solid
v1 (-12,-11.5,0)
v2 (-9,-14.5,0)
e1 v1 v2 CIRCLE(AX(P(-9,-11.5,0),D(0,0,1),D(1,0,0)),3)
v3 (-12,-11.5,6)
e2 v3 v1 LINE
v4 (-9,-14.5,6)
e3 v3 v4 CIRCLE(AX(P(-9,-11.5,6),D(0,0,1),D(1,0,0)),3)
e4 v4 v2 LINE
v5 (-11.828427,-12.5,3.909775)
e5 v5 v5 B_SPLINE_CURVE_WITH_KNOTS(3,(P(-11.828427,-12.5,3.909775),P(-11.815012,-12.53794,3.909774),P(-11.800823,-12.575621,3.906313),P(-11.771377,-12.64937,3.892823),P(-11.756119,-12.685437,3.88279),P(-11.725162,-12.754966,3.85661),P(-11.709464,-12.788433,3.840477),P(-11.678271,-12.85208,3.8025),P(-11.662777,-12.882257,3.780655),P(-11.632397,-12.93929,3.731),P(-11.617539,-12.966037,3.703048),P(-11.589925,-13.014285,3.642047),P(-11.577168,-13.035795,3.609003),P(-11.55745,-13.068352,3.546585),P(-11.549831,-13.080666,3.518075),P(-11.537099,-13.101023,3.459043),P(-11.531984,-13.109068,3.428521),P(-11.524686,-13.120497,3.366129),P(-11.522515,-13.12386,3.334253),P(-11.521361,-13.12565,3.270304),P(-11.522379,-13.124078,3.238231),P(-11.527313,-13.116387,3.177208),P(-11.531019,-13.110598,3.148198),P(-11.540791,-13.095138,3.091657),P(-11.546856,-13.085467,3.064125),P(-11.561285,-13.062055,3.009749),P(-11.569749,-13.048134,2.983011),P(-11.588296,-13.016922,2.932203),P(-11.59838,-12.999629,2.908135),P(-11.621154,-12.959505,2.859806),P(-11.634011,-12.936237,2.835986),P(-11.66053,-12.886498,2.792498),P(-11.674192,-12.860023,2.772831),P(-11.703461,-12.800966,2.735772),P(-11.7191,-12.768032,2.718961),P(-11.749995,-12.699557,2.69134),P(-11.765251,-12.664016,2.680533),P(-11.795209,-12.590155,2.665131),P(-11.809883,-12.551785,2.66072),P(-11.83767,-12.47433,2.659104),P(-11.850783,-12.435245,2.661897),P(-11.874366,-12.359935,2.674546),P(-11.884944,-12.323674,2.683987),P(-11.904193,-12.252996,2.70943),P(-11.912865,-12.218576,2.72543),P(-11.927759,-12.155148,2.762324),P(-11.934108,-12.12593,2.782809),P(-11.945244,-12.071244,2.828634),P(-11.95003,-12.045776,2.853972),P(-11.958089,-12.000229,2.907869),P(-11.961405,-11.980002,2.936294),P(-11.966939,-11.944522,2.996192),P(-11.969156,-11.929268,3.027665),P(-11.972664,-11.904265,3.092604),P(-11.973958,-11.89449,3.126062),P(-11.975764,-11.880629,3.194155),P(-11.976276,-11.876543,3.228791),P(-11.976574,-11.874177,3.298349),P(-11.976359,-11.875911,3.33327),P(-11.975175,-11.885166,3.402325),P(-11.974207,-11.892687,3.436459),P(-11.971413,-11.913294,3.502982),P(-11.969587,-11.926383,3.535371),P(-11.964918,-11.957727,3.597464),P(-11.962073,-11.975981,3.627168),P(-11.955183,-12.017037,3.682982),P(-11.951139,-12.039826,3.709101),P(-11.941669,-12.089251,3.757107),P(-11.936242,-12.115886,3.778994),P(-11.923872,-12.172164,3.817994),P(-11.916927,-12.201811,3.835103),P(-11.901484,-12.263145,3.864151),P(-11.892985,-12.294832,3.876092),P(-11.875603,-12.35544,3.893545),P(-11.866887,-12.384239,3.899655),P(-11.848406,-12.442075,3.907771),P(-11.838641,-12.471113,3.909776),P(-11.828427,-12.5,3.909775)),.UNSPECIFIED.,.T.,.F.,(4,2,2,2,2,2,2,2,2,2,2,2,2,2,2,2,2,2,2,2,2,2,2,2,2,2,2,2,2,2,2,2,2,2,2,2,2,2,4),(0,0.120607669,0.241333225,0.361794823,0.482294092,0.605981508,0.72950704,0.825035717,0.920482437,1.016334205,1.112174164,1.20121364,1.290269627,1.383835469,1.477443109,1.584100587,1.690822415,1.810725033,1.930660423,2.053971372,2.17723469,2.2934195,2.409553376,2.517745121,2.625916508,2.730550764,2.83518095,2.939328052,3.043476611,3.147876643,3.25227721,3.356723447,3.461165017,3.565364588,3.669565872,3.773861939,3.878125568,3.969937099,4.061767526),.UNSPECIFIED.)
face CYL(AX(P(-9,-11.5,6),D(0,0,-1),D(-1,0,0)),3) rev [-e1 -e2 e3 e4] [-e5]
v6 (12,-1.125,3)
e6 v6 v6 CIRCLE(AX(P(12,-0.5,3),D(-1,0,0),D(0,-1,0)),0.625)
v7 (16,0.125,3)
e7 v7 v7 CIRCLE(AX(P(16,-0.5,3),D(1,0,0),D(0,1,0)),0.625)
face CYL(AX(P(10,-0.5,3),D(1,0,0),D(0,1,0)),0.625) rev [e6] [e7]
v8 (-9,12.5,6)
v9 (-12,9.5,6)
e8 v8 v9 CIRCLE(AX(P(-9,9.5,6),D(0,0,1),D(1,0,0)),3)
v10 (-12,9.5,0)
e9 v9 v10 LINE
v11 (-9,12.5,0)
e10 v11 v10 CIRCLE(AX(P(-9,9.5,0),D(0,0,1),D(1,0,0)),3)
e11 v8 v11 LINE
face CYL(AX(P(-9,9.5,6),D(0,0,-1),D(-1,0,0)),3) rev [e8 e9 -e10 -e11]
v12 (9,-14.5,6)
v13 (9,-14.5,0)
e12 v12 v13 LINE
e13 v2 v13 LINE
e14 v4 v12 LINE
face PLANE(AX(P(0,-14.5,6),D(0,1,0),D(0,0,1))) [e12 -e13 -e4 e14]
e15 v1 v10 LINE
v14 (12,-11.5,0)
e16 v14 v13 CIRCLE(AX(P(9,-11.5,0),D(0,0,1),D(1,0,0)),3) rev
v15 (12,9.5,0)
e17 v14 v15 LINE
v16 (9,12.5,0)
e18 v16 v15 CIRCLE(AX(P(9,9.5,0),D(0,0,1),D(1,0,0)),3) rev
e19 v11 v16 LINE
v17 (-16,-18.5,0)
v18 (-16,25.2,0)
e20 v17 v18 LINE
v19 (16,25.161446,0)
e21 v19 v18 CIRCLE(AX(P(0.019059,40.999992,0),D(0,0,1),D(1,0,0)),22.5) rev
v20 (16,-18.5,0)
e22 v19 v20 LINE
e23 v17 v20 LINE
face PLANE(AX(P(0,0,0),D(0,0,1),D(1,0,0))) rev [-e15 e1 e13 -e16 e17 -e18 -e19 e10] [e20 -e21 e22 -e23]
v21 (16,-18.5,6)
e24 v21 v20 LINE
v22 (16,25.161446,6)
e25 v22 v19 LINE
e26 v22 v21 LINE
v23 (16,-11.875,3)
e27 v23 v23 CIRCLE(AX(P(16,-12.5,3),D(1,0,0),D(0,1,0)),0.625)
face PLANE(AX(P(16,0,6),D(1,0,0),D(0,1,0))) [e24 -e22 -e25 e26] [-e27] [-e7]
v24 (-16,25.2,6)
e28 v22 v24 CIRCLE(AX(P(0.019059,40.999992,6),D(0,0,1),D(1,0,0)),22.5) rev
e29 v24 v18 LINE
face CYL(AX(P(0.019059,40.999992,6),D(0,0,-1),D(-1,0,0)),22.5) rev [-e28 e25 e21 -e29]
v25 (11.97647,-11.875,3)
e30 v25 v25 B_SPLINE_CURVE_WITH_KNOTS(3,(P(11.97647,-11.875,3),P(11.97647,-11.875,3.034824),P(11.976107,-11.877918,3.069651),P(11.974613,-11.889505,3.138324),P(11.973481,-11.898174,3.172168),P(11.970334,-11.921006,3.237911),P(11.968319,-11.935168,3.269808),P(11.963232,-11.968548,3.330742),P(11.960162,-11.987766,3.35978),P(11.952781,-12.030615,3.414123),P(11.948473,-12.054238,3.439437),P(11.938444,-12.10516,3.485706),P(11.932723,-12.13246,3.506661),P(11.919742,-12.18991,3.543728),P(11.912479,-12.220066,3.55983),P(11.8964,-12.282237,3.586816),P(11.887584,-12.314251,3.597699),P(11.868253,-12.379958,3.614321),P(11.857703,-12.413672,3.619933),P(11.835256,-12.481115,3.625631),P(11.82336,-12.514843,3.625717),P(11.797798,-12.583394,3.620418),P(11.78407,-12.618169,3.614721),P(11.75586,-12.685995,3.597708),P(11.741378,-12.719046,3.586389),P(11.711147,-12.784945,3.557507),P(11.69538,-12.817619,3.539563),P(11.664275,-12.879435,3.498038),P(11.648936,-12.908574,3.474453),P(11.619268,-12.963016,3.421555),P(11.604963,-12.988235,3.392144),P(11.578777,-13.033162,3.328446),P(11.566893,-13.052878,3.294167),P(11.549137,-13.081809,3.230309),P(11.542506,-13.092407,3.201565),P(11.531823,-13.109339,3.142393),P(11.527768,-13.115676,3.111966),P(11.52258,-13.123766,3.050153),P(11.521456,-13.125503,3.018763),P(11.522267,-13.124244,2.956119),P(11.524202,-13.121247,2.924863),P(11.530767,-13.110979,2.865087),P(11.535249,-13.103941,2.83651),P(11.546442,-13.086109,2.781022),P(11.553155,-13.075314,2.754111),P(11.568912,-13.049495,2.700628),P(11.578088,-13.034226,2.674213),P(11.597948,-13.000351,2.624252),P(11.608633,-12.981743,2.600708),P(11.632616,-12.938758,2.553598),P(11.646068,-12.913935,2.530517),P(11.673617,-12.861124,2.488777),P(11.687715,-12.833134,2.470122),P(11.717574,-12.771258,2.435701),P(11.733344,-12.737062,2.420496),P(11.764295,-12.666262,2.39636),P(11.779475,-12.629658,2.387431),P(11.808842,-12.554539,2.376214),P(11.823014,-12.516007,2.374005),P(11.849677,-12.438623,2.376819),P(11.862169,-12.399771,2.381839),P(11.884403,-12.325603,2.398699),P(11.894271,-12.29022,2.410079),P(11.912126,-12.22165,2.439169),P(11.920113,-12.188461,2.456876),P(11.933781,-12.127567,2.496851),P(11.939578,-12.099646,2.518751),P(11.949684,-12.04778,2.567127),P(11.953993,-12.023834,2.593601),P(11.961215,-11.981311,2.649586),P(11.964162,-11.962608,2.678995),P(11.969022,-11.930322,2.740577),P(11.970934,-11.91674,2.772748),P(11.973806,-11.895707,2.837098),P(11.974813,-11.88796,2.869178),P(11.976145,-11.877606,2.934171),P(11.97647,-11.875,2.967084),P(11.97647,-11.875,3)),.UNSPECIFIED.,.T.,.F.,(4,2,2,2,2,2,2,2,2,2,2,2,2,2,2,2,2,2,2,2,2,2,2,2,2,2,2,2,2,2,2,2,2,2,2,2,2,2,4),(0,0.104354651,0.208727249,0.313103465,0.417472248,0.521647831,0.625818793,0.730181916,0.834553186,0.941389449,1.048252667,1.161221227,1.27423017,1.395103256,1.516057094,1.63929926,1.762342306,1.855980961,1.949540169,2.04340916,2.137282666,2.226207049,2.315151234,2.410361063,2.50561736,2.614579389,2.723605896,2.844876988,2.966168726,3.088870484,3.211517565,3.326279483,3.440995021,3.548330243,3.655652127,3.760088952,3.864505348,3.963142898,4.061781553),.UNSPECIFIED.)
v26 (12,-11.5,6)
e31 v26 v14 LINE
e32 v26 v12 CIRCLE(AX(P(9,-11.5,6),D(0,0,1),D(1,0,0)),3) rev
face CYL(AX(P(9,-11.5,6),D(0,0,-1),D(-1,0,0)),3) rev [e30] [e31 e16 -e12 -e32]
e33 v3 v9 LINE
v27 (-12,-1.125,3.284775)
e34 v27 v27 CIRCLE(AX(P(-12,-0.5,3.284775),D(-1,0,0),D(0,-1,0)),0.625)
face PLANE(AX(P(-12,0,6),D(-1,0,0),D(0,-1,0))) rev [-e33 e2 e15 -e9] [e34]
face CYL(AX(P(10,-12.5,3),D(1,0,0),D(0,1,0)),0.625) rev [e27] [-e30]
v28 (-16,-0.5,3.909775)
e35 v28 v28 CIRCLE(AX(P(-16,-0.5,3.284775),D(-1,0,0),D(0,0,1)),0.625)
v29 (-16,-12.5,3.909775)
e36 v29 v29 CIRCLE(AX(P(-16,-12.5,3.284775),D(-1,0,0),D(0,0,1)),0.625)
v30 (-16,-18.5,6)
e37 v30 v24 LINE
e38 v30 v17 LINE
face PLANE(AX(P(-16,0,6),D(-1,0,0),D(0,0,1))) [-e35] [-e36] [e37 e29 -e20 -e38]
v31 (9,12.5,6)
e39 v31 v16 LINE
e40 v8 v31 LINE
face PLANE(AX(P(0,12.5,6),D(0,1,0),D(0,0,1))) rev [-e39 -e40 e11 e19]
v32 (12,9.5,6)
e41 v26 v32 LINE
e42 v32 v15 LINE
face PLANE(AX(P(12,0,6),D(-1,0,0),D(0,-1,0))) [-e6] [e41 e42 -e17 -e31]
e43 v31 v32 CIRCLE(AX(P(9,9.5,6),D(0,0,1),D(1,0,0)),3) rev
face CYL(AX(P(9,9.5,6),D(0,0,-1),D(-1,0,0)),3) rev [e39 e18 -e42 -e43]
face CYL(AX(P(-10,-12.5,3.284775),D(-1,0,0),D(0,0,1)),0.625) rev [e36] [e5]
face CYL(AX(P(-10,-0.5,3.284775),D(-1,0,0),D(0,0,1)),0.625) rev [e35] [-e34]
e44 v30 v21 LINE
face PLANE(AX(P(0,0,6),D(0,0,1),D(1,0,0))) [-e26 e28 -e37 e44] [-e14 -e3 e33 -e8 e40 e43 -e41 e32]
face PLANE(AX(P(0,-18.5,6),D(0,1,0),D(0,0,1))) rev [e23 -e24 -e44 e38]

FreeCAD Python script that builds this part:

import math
import FreeCAD as App
import Part
import Sketcher
from FreeCAD import Vector

doc = App.newDocument("Part")
params = doc.addObject("Spreadsheet::Sheet", "Params")
for row, (alias, value) in enumerate([
    ("sketch1_radius", "3 mm"),
    ("sketch1_radius2", "22.5 mm"),
    ("sketch1_width", "32 mm"),
    ("sketch1_width2", "18 mm"),
    ("sketch1_height", "21 mm"),
    ("pad1_length", "6 mm"),
    ("sketch2_diameter", "1.25 mm"),
    ("pocket1_length", "6 mm"),
    ("sketch3_diameter", "1.25 mm"),
    ("pocket2_length", "6 mm"),
], start=1):
    params.set(f"A{row}", alias)
    params.set(f"B{row}", "=" + value)
    params.setAlias(f"B{row}", alias)

body = doc.addObject("PartDesign::Body", "Body")

sketch1 = body.newObject("Sketcher::SketchObject", "Sketch")
sketch1.AttachmentSupport = (doc.getObject("XY_Plane"), [""])
sketch1.MapMode = "FlatFace"
sketch1.addGeometry([
    Part.LineSegment(Vector(-16, 25.2, 0), Vector(-16, -18.5, 0)),
    Part.LineSegment(Vector(-16, -18.5, 0), Vector(16, -18.5, 0)),
    Part.LineSegment(Vector(16, -18.5, 0), Vector(16, 25.161446, 0)),
    Part.ArcOfCircle(Part.Circle(Vector(0.019059, 40.999992, 0), Vector(0, 0, 1), 22.5), math.radians(-135.394463), math.radians(-44.743598)),
    Part.LineSegment(Vector(9, -14.5, 0), Vector(-9, -14.5, 0)),
    Part.ArcOfCircle(Part.Circle(Vector(-9, -11.5, 0), Vector(0, 0, 1), 3), math.radians(180), math.radians(270)),
    Part.LineSegment(Vector(-12, -11.5, 0), Vector(-12, 9.5, 0)),
    Part.ArcOfCircle(Part.Circle(Vector(-9, 9.5, 0), Vector(0, 0, 1), 3), math.radians(90), math.radians(180)),
    Part.LineSegment(Vector(-9, 12.5, 0), Vector(9, 12.5, 0)),
    Part.ArcOfCircle(Part.Circle(Vector(9, 9.5, 0), Vector(0, 0, 1), 3), math.radians(0), math.radians(90)),
    Part.LineSegment(Vector(12, 9.5, 0), Vector(12, -11.5, 0)),
    Part.ArcOfCircle(Part.Circle(Vector(9, -11.5, 0), Vector(0, 0, 1), 3), math.radians(-90), math.radians(0)),
], False)
sketch1.addConstraint([
    Sketcher.Constraint("Coincident", 0, 2, 1, 1),
    Sketcher.Constraint("Coincident", 1, 2, 2, 1),
    Sketcher.Constraint("Coincident", 2, 2, 3, 2),
    Sketcher.Constraint("Coincident", 3, 1, 0, 1),
    Sketcher.Constraint("Tangent", 4, 2, 5, 2),
    Sketcher.Constraint("Tangent", 5, 1, 6, 1),
    Sketcher.Constraint("Tangent", 6, 2, 7, 2),
    Sketcher.Constraint("Tangent", 7, 1, 8, 1),
    Sketcher.Constraint("Tangent", 8, 2, 9, 2),
    Sketcher.Constraint("Tangent", 9, 1, 10, 1),
    Sketcher.Constraint("Tangent", 10, 2, 11, 2),
    Sketcher.Constraint("Tangent", 11, 1, 4, 1),
    Sketcher.Constraint("Vertical", 0),
    Sketcher.Constraint("Horizontal", 1),
    Sketcher.Constraint("Vertical", 2),
    Sketcher.Constraint("Horizontal", 4),
    Sketcher.Constraint("Vertical", 6),
    Sketcher.Constraint("Horizontal", 8),
    Sketcher.Constraint("Vertical", 10),
    Sketcher.Constraint("Equal", 5, 7),
    Sketcher.Constraint("Equal", 7, 9),
    Sketcher.Constraint("Equal", 9, 11),
    Sketcher.Constraint("Radius", 5, 3.0),
    Sketcher.Constraint("Radius", 3, 22.5),
    Sketcher.Constraint("DistanceX", 1, 1, 1, 2, 32.0),
    Sketcher.Constraint("DistanceX", 4, 2, 4, 1, 18.0),
    Sketcher.Constraint("DistanceY", 6, 1, 6, 2, 21.0),
    Sketcher.Constraint("DistanceY", 0, 2, 0, 1, 43.7),
    Sketcher.Constraint("DistanceX", 5, 3, -1, 1, 9.0),
    Sketcher.Constraint("DistanceX", 0, 2, -1, 1, 16.0),
    Sketcher.Constraint("DistanceY", 0, 2, 5, 3, 7.0),
    Sketcher.Constraint("DistanceY", 5, 3, -1, 1, 11.5),
    Sketcher.Constraint("DistanceY", 2, 1, 2, 2, 43.661446),
])
sketch1.setExpression("Constraints[22]", "Params.sketch1_radius")
sketch1.setExpression("Constraints[23]", "Params.sketch1_radius2")
sketch1.setExpression("Constraints[24]", "Params.sketch1_width")
sketch1.setExpression("Constraints[25]", "Params.sketch1_width2")
sketch1.setExpression("Constraints[26]", "Params.sketch1_height")
pad1 = body.newObject("PartDesign::Pad", "Pad")
pad1.Profile = sketch1
pad1.setExpression("Length", "Params.pad1_length")

sketch2 = body.newObject("Sketcher::SketchObject", "Sketch001")
sketch2.AttachmentSupport = (doc.getObject("YZ_Plane"), [""])
sketch2.MapMode = "FlatFace"
sketch2.AttachmentOffset = App.Placement(Vector(0, 0, 16), App.Rotation())
sketch2.addGeometry([
    Part.Circle(Vector(-0.5, 3, 0), Vector(0, 0, 1), 0.625),
    Part.Circle(Vector(-12.5, 3, 0), Vector(0, 0, 1), 0.625),
], False)
sketch2.addConstraint([
    Sketcher.Constraint("Equal", 0, 1),
    Sketcher.Constraint("Horizontal", 0, 3, 1, 3),
    Sketcher.Constraint("Diameter", 0, 1.25),
    Sketcher.Constraint("DistanceY", -1, 1, 0, 3, 3.0),
    Sketcher.Constraint("DistanceX", 1, 3, 0, 3, 12.0),
    Sketcher.Constraint("DistanceX", 0, 3, -1, 1, 0.5),
])
sketch2.setExpression("Constraints[2]", "Params.sketch2_diameter")
pocket1 = body.newObject("PartDesign::Pocket", "Pocket")
pocket1.Profile = sketch2
pocket1.setExpression("Length", "Params.pocket1_length")

sketch3 = body.newObject("Sketcher::SketchObject", "Sketch002")
sketch3.AttachmentSupport = (doc.getObject("YZ_Plane"), [""])
sketch3.MapMode = "FlatFace"
sketch3.AttachmentOffset = App.Placement(Vector(0, 0, -16), App.Rotation())
sketch3.addGeometry([
    Part.Circle(Vector(-12.5, 3.284775, 0), Vector(0, 0, 1), 0.625),
    Part.Circle(Vector(-0.5, 3.284775, 0), Vector(0, 0, 1), 0.625),
], False)
sketch3.addConstraint([
    Sketcher.Constraint("Equal", 0, 1),
    Sketcher.Constraint("Horizontal", 0, 3, 1, 3),
    Sketcher.Constraint("Diameter", 0, 1.25),
    Sketcher.Constraint("DistanceX", 0, 3, 1, 3, 12.0),
    Sketcher.Constraint("DistanceX", 0, 3, -1, 1, 12.5),
    Sketcher.Constraint("DistanceY", -1, 1, 0, 3, 3.284775),
])
sketch3.setExpression("Constraints[2]", "Params.sketch3_diameter")
pocket2 = body.newObject("PartDesign::Pocket", "Pocket001")
pocket2.Profile = sketch3
pocket2.setExpression("Length", "Params.pocket2_length")
pocket2.Reversed = True

doc.recompute()
